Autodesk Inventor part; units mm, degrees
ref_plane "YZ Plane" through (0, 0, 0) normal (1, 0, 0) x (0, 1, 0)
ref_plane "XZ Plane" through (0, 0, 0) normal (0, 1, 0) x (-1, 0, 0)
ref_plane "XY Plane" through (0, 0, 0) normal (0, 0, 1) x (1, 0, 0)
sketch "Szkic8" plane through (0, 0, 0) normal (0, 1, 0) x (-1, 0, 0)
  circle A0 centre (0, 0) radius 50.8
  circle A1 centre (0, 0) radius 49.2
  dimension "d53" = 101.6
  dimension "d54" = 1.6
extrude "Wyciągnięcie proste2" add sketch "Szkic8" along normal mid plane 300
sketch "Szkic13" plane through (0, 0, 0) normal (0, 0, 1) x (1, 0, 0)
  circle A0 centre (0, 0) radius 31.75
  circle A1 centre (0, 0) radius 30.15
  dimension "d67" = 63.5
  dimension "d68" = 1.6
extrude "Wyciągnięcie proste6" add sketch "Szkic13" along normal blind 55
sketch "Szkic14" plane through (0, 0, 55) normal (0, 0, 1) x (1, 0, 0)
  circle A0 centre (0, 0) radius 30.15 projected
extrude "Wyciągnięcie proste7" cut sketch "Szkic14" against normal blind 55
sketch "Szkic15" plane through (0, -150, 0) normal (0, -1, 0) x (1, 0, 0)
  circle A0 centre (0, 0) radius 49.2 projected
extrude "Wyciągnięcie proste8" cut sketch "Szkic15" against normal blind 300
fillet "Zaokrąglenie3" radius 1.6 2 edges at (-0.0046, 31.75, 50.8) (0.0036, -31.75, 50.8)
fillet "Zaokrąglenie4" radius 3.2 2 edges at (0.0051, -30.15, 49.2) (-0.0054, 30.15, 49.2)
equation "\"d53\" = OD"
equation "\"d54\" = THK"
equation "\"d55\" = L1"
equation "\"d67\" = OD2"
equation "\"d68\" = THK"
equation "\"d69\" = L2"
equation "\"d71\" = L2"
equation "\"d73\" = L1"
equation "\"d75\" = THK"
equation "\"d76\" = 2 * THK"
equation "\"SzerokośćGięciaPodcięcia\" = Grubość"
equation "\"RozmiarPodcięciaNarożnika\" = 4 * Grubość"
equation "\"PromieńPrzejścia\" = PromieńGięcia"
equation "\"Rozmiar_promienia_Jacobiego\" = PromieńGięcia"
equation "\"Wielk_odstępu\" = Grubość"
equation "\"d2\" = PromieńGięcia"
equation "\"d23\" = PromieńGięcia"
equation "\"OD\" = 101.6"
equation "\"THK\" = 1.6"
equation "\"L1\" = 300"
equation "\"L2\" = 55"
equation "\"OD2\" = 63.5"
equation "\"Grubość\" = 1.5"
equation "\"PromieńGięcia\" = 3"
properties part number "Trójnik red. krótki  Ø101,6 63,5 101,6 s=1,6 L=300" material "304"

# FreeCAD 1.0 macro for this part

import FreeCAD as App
import Part
import Sketcher


def edges_at(feature, points):
    """Names of the edges that pass closest to the given points."""
    edges = feature.Shape.Edges
    near = lambda p: min(range(len(edges)), key=lambda i: edges[i].distToShape(Part.Vertex(*p))[0])
    return sorted({f"Edge{near(p) + 1}" for p in points})

doc = App.newDocument("Part")
body = doc.addObject("PartDesign::Body", "Body")

# Sketch on XZ plane
sketch1 = doc.addObject("Sketcher::SketchObject", "Sketch")
body.addObject(sketch1)
sketch1.AttachmentSupport = (doc.XZ_Plane, [""])
sketch1.MapMode = "FlatFace"
sketch1.addGeometry(Part.Circle(App.Vector(0, 0, 0), App.Vector(0, 0, 1), 51), False)
sketch1.addGeometry(Part.Circle(App.Vector(0, 0, 0), App.Vector(0, 0, 1), 49), False)
sketch1.addConstraint(Sketcher.Constraint("Coincident", 0, 3, -1, 1))
sketch1.addConstraint(Sketcher.Constraint("Coincident", 1, 3, -1, 1))
sketch1.addConstraint(Sketcher.Constraint("Diameter", 0, 101.6))
sketch1.addConstraint(Sketcher.Constraint("Diameter", 1, 98.4))
pad1 = doc.addObject("PartDesign::Pad", "Pad")
body.addObject(pad1)
pad1.Profile = sketch1
pad1.Length = 300
pad1.Midplane = True

# Sketch on XY plane
sketch2 = doc.addObject("Sketcher::SketchObject", "Sketch001")
body.addObject(sketch2)
sketch2.AttachmentSupport = (doc.XY_Plane, [""])
sketch2.MapMode = "FlatFace"
sketch2.addGeometry(Part.Circle(App.Vector(0, 0, 0), App.Vector(0, 0, 1), 32), False)
sketch2.addGeometry(Part.Circle(App.Vector(0, 0, 0), App.Vector(0, 0, 1), 30), False)
sketch2.addConstraint(Sketcher.Constraint("Coincident", 0, 3, -1, 1))
sketch2.addConstraint(Sketcher.Constraint("Coincident", 1, 3, -1, 1))
sketch2.addConstraint(Sketcher.Constraint("Diameter", 0, 63.5))
sketch2.addConstraint(Sketcher.Constraint("Diameter", 1, 60.3))
pad2 = doc.addObject("PartDesign::Pad", "Pad001")
body.addObject(pad2)
pad2.Profile = sketch2
pad2.Length = 55

# Sketch on XY plane
sketch3 = doc.addObject("Sketcher::SketchObject", "Sketch002")
body.addObject(sketch3)
sketch3.AttachmentSupport = (doc.XY_Plane, [""])
sketch3.MapMode = "FlatFace"
sketch3.AttachmentOffset = App.Placement(App.Vector(0, 0, 55), App.Rotation())
sketch3.addGeometry(Part.Circle(App.Vector(0, 0, 0), App.Vector(0, 0, 1), 30), False)
sketch3.addConstraint(Sketcher.Constraint("Coincident", 0, 3, -1, 1))
sketch3.addConstraint(Sketcher.Constraint("Diameter", 0, 60.3))
pocket1 = doc.addObject("PartDesign::Pocket", "Pocket")
body.addObject(pocket1)
pocket1.Profile = sketch3
pocket1.Length = 55

# Sketch on XZ plane
sketch4 = doc.addObject("Sketcher::SketchObject", "Sketch003")
body.addObject(sketch4)
sketch4.AttachmentSupport = (doc.XZ_Plane, [""])
sketch4.MapMode = "FlatFace"
sketch4.AttachmentOffset = App.Placement(App.Vector(0, 0, 150), App.Rotation())
sketch4.addGeometry(Part.Circle(App.Vector(0, 0, 0), App.Vector(0, 0, 1), 49), False)
sketch4.addConstraint(Sketcher.Constraint("Coincident", 0, 3, -1, 1))
sketch4.addConstraint(Sketcher.Constraint("Diameter", 0, 98.4))
pocket2 = doc.addObject("PartDesign::Pocket", "Pocket001")
body.addObject(pocket2)
pocket2.Profile = sketch4
pocket2.Length = 300
doc.recompute()

fillet = doc.addObject("PartDesign::Fillet", "Fillet")
body.addObject(fillet)
fillet.Base = (pocket2, edges_at(pocket2, [(-0.005, 31.75, 50.8), (0.004, -31.75, 50.8)]))
fillet.Radius = 1.6
doc.recompute()

fillet2 = doc.addObject("PartDesign::Fillet", "Fillet001")
body.addObject(fillet2)
fillet2.Base = (fillet, edges_at(fillet, [(0.005, -30.15, 49.2), (-0.005, 30.15, 49.2)]))
fillet2.Radius = 3.2

doc.recompute()
